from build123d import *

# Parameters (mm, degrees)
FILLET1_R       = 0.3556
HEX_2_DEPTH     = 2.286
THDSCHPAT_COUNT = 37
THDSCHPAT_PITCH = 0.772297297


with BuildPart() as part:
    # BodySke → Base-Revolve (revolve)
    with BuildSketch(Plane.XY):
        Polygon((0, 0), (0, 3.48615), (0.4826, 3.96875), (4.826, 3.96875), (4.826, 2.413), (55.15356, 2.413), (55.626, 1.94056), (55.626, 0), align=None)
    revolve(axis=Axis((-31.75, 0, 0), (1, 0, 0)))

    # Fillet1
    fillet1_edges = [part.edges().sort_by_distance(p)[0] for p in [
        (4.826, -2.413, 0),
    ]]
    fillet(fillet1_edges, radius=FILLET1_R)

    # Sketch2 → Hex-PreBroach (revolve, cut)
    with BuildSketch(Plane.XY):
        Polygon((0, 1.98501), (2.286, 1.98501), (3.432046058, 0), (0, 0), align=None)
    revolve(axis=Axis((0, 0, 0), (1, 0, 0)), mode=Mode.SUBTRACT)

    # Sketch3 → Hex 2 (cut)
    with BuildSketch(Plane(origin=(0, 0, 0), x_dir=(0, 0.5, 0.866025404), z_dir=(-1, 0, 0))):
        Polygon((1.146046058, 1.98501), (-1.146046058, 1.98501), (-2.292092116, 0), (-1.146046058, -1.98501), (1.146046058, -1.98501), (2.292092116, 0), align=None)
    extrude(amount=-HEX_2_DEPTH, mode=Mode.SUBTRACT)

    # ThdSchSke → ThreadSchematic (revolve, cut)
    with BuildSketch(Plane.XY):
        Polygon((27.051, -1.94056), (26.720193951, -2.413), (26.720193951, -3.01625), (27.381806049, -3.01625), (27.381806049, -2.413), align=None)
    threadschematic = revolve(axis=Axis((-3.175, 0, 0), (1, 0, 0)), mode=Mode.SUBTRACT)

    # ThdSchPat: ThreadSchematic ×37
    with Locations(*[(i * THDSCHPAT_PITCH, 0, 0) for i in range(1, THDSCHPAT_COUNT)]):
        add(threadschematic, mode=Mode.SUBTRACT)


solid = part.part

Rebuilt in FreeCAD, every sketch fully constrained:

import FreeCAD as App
import Part
import Sketcher
from FreeCAD import Vector
Q = App.Units.Quantity


def edges_at(feature, points):
    """Names of the edges that pass closest to the given points."""
    edges = feature.Shape.Edges
    near = lambda p: min(range(len(edges)), key=lambda i: edges[i].distToShape(Part.Vertex(*p))[0])
    return sorted({f"Edge{near(p) + 1}" for p in points})

doc = App.newDocument("Part")
params = doc.addObject("Spreadsheet::Sheet", "Params")
for row, (alias, value) in enumerate([
    ("sketch1_width", "2.19 in"),
    ("sketch1_width2", "0.171 in"),
    ("revolution_angle", "360 deg"),
    ("fillet_radius", "0.014 in"),
    ("sketch2_width", "0.09 in"),
    ("groove_angle", "360 deg"),
    ("pocket1_length", "0.09 in"),
    ("groove2_angle", "360 deg"),
    ("linearpattern_pitch", "0.772297 mm"),
], start=1):
    params.set(f"A{row}", alias)
    params.set(f"B{row}", "=" + value)
    params.setAlias(f"B{row}", alias)

body = doc.addObject("PartDesign::Body", "Body")

# Sketch on XY plane
sketch1 = body.newObject("Sketcher::SketchObject", "Sketch")
sketch1.AttachmentSupport = (doc.getObject("XY_Plane"), [""])
sketch1.MapMode = "FlatFace"
sketch1.addGeometry([
    Part.LineSegment(Vector(0, 3.48615, 0), Vector(0, 0, 0)),  # 0
    Part.LineSegment(Vector(0, 0, 0), Vector(55.626, 0, 0)),  # 1
    Part.LineSegment(Vector(55.626, 0, 0), Vector(55.626, 1.94056, 0)),  # 2
    Part.LineSegment(Vector(55.626, 1.94056, 0), Vector(55.15356, 2.413, 0)),  # 3
    Part.LineSegment(Vector(55.15356, 2.413, 0), Vector(4.826, 2.413, 0)),  # 4
    Part.LineSegment(Vector(4.826, 2.413, 0), Vector(4.826, 3.96875, 0)),  # 5
    Part.LineSegment(Vector(4.826, 3.96875, 0), Vector(0.4826, 3.96875, 0)),  # 6
    Part.LineSegment(Vector(0.4826, 3.96875, 0), Vector(0, 3.48615, 0)),  # 7
], False)
sketch1.addConstraint([
    Sketcher.Constraint("Coincident", 0, 2, 1, 1),
    Sketcher.Constraint("Coincident", 1, 2, 2, 1),
    Sketcher.Constraint("Coincident", 2, 2, 3, 1),
    Sketcher.Constraint("Coincident", 3, 2, 4, 1),
    Sketcher.Constraint("Coincident", 4, 2, 5, 1),
    Sketcher.Constraint("Coincident", 5, 2, 6, 1),
    Sketcher.Constraint("Coincident", 6, 2, 7, 1),
    Sketcher.Constraint("Coincident", 7, 2, 0, 1),
    Sketcher.Constraint("Vertical", 0),
    Sketcher.Constraint("Horizontal", 1),
    Sketcher.Constraint("Vertical", 2),
    Sketcher.Constraint("Horizontal", 4),
    Sketcher.Constraint("Vertical", 5),
    Sketcher.Constraint("Horizontal", 6),
    Sketcher.Constraint("Coincident", 0, 2, -1, 1),
    Sketcher.Constraint("Perpendicular", 3, 7),
    Sketcher.Constraint("Angle", 3, Q("135 deg")),
    Sketcher.Constraint("DistanceX", 4, 2, 2, 2, Q("2 in")),
    Sketcher.Constraint("DistanceX", 1, 1, 1, 2, Q("2.19 in")),
    Sketcher.Constraint("DistanceX", 6, 2, 6, 1, Q("0.171 in")),
    Sketcher.Constraint("DistanceX", 4, 2, 4, 1, Q("1.9814 in")),
    Sketcher.Constraint("DistanceY", 2, 1, 2, 2, Q("0.0764 in")),
    Sketcher.Constraint("DistanceY", -1, 1, 5, 2, Q("0.15625 in")),
])
sketch1.setExpression("Constraints[18]", "Params.sketch1_width")
sketch1.setExpression("Constraints[19]", "Params.sketch1_width2")
revolution = body.newObject("PartDesign::Revolution", "Revolution")
revolution.Profile = sketch1
revolution.ReferenceAxis = (sketch1, ["H_Axis"])
revolution.setExpression("Angle", "Params.revolution_angle")
doc.recompute()

fillet = body.newObject("PartDesign::Fillet", "Fillet")
fillet.Base = (revolution, edges_at(revolution, [(4.826, -2.413, 0)]))
fillet.setExpression("Radius", "Params.fillet_radius")

# Sketch on XY plane
sketch2 = body.newObject("Sketcher::SketchObject", "Sketch001")
sketch2.AttachmentSupport = (doc.getObject("XY_Plane"), [""])
sketch2.MapMode = "FlatFace"
sketch2.addGeometry([
    Part.LineSegment(Vector(2.286, 1.98501, 0), Vector(0, 1.98501, 0)),
    Part.LineSegment(Vector(0, 1.98501, 0), Vector(0, 0, 0)),
    Part.LineSegment(Vector(0, 0, 0), Vector(3.432046, 0, 0)),
    Part.LineSegment(Vector(3.432046, 0, 0), Vector(2.286, 1.98501, 0)),
], False)
sketch2.addConstraint([
    Sketcher.Constraint("Coincident", 0, 2, 1, 1),
    Sketcher.Constraint("Coincident", 1, 2, 2, 1),
    Sketcher.Constraint("Coincident", 2, 2, 3, 1),
    Sketcher.Constraint("Coincident", 3, 2, 0, 1),
    Sketcher.Constraint("Horizontal", 0),
    Sketcher.Constraint("Vertical", 1),
    Sketcher.Constraint("Horizontal", 2),
    Sketcher.Constraint("Coincident", 1, 2, -1, 1),
    Sketcher.Constraint("Angle", 3, Q("120 deg")),
    Sketcher.Constraint("DistanceX", 0, 2, 0, 1, Q("0.09 in")),
    Sketcher.Constraint("DistanceY", 1, 2, 1, 1, Q("1.98501 mm")),
])
sketch2.setExpression("Constraints[9]", "Params.sketch2_width")
groove = body.newObject("PartDesign::Groove", "Groove")
groove.Profile = sketch2
groove.ReferenceAxis = (sketch2, ["H_Axis"])
groove.setExpression("Angle", "Params.groove_angle")

# Sketch on YZ plane
sketch3 = body.newObject("Sketcher::SketchObject", "Sketch002")
sketch3.AttachmentSupport = (doc.getObject("YZ_Plane"), [""])
sketch3.MapMode = "FlatFace"
sketch3.addGeometry([
    Part.LineSegment(Vector(2.292092, 0, 0), Vector(1.146046, -1.98501, 0)),  # 0
    Part.LineSegment(Vector(1.146046, -1.98501, 0), Vector(-1.146046, -1.98501, 0)),  # 1
    Part.LineSegment(Vector(-1.146046, -1.98501, 0), Vector(-2.292092, 0, 0)),  # 2
    Part.LineSegment(Vector(-2.292092, 0, 0), Vector(-1.146046, 1.98501, 0)),  # 3
    Part.LineSegment(Vector(-1.146046, 1.98501, 0), Vector(1.146046, 1.98501, 0)),  # 4
    Part.LineSegment(Vector(1.146046, 1.98501, 0), Vector(2.292092, 0, 0)),  # 5
], False)
sketch3.addConstraint([
    Sketcher.Constraint("Coincident", 0, 2, 1, 1),
    Sketcher.Constraint("Coincident", 1, 2, 2, 1),
    Sketcher.Constraint("Coincident", 2, 2, 3, 1),
    Sketcher.Constraint("Coincident", 3, 2, 4, 1),
    Sketcher.Constraint("Coincident", 4, 2, 5, 1),
    Sketcher.Constraint("Coincident", 5, 2, 0, 1),
    Sketcher.Constraint("Horizontal", 1),
    Sketcher.Constraint("Horizontal", 4),
    Sketcher.Constraint("Symmetric", 0, 2, 3, 2, -1, 1),
    Sketcher.Constraint("Symmetric", 2, 2, 5, 2, -1, 1),
    Sketcher.Constraint("PointOnObject", 2, 2, -1),
    Sketcher.Constraint("Parallel", 2, 5),
    Sketcher.Constraint("Vertical", 1, 2, 3, 2),
    Sketcher.Constraint("Angle", 0, Q("-120 deg")),
    Sketcher.Constraint("DistanceY", 1, 2, 3, 2, Q("0.1563 in")),
    Sketcher.Constraint("DistanceX", 1, 2, 1, 1, Q("2.292092 mm")),
])
pocket1 = body.newObject("PartDesign::Pocket", "Pocket")
pocket1.Profile = sketch3
pocket1.setExpression("Length", "Params.pocket1_length")
pocket1.Reversed = True

# Sketch on XY plane
sketch4 = body.newObject("Sketcher::SketchObject", "Sketch003")
sketch4.AttachmentSupport = (doc.getObject("XY_Plane"), [""])
sketch4.MapMode = "FlatFace"
sketch4.addGeometry([
    Part.LineSegment(Vector(27.051, -1.94056, 0), Vector(26.720194, -2.413, 0)),  # 0
    Part.LineSegment(Vector(26.720194, -2.413, 0), Vector(26.720194, -3.01625, 0)),  # 1
    Part.LineSegment(Vector(26.720194, -3.01625, 0), Vector(27.381806, -3.01625, 0)),  # 2
    Part.LineSegment(Vector(27.381806, -3.01625, 0), Vector(27.381806, -2.413, 0)),  # 3
    Part.LineSegment(Vector(27.381806, -2.413, 0), Vector(27.051, -1.94056, 0)),  # 4
], False)
sketch4.addConstraint([
    Sketcher.Constraint("Coincident", 0, 2, 1, 1),
    Sketcher.Constraint("Coincident", 1, 2, 2, 1),
    Sketcher.Constraint("Coincident", 2, 2, 3, 1),
    Sketcher.Constraint("Coincident", 3, 2, 4, 1),
    Sketcher.Constraint("Coincident", 4, 2, 0, 1),
    Sketcher.Constraint("Vertical", 1),
    Sketcher.Constraint("Horizontal", 2),
    Sketcher.Constraint("Vertical", 3),
    Sketcher.Constraint("Horizontal", 0, 2, 3, 2),
    Sketcher.Constraint("Equal", 0, 4),
    Sketcher.Constraint("Angle", 0, Q("-125 deg")),
    Sketcher.Constraint("DistanceY", 0, 2, -1, 1, Q("0.095 in")),
    Sketcher.Constraint("DistanceX", -1, 1, 4, 2, Q("1.065 in")),
    Sketcher.Constraint("DistanceY", 4, 2, -1, 1, Q("0.0764 in")),
    Sketcher.Constraint("DistanceY", 1, 2, 1, 1, Q("0.60325 mm")),
])
groove2 = body.newObject("PartDesign::Groove", "Groove001")
groove2.Profile = sketch4
groove2.ReferenceAxis = (sketch4, ["H_Axis"])
groove2.setExpression("Angle", "Params.groove2_angle")
doc.recompute()

linearpattern = body.newObject("PartDesign::LinearPattern", "LinearPattern")
linearpattern.Originals = [groove2]
linearpattern.Direction = (doc.getObject("X_Axis"), [""])
linearpattern.Mode = "offset"
linearpattern.setExpression("Offset", "Params.linearpattern_pitch")
linearpattern.Occurrences = 37
body.Tip = linearpattern

doc.recompute()
